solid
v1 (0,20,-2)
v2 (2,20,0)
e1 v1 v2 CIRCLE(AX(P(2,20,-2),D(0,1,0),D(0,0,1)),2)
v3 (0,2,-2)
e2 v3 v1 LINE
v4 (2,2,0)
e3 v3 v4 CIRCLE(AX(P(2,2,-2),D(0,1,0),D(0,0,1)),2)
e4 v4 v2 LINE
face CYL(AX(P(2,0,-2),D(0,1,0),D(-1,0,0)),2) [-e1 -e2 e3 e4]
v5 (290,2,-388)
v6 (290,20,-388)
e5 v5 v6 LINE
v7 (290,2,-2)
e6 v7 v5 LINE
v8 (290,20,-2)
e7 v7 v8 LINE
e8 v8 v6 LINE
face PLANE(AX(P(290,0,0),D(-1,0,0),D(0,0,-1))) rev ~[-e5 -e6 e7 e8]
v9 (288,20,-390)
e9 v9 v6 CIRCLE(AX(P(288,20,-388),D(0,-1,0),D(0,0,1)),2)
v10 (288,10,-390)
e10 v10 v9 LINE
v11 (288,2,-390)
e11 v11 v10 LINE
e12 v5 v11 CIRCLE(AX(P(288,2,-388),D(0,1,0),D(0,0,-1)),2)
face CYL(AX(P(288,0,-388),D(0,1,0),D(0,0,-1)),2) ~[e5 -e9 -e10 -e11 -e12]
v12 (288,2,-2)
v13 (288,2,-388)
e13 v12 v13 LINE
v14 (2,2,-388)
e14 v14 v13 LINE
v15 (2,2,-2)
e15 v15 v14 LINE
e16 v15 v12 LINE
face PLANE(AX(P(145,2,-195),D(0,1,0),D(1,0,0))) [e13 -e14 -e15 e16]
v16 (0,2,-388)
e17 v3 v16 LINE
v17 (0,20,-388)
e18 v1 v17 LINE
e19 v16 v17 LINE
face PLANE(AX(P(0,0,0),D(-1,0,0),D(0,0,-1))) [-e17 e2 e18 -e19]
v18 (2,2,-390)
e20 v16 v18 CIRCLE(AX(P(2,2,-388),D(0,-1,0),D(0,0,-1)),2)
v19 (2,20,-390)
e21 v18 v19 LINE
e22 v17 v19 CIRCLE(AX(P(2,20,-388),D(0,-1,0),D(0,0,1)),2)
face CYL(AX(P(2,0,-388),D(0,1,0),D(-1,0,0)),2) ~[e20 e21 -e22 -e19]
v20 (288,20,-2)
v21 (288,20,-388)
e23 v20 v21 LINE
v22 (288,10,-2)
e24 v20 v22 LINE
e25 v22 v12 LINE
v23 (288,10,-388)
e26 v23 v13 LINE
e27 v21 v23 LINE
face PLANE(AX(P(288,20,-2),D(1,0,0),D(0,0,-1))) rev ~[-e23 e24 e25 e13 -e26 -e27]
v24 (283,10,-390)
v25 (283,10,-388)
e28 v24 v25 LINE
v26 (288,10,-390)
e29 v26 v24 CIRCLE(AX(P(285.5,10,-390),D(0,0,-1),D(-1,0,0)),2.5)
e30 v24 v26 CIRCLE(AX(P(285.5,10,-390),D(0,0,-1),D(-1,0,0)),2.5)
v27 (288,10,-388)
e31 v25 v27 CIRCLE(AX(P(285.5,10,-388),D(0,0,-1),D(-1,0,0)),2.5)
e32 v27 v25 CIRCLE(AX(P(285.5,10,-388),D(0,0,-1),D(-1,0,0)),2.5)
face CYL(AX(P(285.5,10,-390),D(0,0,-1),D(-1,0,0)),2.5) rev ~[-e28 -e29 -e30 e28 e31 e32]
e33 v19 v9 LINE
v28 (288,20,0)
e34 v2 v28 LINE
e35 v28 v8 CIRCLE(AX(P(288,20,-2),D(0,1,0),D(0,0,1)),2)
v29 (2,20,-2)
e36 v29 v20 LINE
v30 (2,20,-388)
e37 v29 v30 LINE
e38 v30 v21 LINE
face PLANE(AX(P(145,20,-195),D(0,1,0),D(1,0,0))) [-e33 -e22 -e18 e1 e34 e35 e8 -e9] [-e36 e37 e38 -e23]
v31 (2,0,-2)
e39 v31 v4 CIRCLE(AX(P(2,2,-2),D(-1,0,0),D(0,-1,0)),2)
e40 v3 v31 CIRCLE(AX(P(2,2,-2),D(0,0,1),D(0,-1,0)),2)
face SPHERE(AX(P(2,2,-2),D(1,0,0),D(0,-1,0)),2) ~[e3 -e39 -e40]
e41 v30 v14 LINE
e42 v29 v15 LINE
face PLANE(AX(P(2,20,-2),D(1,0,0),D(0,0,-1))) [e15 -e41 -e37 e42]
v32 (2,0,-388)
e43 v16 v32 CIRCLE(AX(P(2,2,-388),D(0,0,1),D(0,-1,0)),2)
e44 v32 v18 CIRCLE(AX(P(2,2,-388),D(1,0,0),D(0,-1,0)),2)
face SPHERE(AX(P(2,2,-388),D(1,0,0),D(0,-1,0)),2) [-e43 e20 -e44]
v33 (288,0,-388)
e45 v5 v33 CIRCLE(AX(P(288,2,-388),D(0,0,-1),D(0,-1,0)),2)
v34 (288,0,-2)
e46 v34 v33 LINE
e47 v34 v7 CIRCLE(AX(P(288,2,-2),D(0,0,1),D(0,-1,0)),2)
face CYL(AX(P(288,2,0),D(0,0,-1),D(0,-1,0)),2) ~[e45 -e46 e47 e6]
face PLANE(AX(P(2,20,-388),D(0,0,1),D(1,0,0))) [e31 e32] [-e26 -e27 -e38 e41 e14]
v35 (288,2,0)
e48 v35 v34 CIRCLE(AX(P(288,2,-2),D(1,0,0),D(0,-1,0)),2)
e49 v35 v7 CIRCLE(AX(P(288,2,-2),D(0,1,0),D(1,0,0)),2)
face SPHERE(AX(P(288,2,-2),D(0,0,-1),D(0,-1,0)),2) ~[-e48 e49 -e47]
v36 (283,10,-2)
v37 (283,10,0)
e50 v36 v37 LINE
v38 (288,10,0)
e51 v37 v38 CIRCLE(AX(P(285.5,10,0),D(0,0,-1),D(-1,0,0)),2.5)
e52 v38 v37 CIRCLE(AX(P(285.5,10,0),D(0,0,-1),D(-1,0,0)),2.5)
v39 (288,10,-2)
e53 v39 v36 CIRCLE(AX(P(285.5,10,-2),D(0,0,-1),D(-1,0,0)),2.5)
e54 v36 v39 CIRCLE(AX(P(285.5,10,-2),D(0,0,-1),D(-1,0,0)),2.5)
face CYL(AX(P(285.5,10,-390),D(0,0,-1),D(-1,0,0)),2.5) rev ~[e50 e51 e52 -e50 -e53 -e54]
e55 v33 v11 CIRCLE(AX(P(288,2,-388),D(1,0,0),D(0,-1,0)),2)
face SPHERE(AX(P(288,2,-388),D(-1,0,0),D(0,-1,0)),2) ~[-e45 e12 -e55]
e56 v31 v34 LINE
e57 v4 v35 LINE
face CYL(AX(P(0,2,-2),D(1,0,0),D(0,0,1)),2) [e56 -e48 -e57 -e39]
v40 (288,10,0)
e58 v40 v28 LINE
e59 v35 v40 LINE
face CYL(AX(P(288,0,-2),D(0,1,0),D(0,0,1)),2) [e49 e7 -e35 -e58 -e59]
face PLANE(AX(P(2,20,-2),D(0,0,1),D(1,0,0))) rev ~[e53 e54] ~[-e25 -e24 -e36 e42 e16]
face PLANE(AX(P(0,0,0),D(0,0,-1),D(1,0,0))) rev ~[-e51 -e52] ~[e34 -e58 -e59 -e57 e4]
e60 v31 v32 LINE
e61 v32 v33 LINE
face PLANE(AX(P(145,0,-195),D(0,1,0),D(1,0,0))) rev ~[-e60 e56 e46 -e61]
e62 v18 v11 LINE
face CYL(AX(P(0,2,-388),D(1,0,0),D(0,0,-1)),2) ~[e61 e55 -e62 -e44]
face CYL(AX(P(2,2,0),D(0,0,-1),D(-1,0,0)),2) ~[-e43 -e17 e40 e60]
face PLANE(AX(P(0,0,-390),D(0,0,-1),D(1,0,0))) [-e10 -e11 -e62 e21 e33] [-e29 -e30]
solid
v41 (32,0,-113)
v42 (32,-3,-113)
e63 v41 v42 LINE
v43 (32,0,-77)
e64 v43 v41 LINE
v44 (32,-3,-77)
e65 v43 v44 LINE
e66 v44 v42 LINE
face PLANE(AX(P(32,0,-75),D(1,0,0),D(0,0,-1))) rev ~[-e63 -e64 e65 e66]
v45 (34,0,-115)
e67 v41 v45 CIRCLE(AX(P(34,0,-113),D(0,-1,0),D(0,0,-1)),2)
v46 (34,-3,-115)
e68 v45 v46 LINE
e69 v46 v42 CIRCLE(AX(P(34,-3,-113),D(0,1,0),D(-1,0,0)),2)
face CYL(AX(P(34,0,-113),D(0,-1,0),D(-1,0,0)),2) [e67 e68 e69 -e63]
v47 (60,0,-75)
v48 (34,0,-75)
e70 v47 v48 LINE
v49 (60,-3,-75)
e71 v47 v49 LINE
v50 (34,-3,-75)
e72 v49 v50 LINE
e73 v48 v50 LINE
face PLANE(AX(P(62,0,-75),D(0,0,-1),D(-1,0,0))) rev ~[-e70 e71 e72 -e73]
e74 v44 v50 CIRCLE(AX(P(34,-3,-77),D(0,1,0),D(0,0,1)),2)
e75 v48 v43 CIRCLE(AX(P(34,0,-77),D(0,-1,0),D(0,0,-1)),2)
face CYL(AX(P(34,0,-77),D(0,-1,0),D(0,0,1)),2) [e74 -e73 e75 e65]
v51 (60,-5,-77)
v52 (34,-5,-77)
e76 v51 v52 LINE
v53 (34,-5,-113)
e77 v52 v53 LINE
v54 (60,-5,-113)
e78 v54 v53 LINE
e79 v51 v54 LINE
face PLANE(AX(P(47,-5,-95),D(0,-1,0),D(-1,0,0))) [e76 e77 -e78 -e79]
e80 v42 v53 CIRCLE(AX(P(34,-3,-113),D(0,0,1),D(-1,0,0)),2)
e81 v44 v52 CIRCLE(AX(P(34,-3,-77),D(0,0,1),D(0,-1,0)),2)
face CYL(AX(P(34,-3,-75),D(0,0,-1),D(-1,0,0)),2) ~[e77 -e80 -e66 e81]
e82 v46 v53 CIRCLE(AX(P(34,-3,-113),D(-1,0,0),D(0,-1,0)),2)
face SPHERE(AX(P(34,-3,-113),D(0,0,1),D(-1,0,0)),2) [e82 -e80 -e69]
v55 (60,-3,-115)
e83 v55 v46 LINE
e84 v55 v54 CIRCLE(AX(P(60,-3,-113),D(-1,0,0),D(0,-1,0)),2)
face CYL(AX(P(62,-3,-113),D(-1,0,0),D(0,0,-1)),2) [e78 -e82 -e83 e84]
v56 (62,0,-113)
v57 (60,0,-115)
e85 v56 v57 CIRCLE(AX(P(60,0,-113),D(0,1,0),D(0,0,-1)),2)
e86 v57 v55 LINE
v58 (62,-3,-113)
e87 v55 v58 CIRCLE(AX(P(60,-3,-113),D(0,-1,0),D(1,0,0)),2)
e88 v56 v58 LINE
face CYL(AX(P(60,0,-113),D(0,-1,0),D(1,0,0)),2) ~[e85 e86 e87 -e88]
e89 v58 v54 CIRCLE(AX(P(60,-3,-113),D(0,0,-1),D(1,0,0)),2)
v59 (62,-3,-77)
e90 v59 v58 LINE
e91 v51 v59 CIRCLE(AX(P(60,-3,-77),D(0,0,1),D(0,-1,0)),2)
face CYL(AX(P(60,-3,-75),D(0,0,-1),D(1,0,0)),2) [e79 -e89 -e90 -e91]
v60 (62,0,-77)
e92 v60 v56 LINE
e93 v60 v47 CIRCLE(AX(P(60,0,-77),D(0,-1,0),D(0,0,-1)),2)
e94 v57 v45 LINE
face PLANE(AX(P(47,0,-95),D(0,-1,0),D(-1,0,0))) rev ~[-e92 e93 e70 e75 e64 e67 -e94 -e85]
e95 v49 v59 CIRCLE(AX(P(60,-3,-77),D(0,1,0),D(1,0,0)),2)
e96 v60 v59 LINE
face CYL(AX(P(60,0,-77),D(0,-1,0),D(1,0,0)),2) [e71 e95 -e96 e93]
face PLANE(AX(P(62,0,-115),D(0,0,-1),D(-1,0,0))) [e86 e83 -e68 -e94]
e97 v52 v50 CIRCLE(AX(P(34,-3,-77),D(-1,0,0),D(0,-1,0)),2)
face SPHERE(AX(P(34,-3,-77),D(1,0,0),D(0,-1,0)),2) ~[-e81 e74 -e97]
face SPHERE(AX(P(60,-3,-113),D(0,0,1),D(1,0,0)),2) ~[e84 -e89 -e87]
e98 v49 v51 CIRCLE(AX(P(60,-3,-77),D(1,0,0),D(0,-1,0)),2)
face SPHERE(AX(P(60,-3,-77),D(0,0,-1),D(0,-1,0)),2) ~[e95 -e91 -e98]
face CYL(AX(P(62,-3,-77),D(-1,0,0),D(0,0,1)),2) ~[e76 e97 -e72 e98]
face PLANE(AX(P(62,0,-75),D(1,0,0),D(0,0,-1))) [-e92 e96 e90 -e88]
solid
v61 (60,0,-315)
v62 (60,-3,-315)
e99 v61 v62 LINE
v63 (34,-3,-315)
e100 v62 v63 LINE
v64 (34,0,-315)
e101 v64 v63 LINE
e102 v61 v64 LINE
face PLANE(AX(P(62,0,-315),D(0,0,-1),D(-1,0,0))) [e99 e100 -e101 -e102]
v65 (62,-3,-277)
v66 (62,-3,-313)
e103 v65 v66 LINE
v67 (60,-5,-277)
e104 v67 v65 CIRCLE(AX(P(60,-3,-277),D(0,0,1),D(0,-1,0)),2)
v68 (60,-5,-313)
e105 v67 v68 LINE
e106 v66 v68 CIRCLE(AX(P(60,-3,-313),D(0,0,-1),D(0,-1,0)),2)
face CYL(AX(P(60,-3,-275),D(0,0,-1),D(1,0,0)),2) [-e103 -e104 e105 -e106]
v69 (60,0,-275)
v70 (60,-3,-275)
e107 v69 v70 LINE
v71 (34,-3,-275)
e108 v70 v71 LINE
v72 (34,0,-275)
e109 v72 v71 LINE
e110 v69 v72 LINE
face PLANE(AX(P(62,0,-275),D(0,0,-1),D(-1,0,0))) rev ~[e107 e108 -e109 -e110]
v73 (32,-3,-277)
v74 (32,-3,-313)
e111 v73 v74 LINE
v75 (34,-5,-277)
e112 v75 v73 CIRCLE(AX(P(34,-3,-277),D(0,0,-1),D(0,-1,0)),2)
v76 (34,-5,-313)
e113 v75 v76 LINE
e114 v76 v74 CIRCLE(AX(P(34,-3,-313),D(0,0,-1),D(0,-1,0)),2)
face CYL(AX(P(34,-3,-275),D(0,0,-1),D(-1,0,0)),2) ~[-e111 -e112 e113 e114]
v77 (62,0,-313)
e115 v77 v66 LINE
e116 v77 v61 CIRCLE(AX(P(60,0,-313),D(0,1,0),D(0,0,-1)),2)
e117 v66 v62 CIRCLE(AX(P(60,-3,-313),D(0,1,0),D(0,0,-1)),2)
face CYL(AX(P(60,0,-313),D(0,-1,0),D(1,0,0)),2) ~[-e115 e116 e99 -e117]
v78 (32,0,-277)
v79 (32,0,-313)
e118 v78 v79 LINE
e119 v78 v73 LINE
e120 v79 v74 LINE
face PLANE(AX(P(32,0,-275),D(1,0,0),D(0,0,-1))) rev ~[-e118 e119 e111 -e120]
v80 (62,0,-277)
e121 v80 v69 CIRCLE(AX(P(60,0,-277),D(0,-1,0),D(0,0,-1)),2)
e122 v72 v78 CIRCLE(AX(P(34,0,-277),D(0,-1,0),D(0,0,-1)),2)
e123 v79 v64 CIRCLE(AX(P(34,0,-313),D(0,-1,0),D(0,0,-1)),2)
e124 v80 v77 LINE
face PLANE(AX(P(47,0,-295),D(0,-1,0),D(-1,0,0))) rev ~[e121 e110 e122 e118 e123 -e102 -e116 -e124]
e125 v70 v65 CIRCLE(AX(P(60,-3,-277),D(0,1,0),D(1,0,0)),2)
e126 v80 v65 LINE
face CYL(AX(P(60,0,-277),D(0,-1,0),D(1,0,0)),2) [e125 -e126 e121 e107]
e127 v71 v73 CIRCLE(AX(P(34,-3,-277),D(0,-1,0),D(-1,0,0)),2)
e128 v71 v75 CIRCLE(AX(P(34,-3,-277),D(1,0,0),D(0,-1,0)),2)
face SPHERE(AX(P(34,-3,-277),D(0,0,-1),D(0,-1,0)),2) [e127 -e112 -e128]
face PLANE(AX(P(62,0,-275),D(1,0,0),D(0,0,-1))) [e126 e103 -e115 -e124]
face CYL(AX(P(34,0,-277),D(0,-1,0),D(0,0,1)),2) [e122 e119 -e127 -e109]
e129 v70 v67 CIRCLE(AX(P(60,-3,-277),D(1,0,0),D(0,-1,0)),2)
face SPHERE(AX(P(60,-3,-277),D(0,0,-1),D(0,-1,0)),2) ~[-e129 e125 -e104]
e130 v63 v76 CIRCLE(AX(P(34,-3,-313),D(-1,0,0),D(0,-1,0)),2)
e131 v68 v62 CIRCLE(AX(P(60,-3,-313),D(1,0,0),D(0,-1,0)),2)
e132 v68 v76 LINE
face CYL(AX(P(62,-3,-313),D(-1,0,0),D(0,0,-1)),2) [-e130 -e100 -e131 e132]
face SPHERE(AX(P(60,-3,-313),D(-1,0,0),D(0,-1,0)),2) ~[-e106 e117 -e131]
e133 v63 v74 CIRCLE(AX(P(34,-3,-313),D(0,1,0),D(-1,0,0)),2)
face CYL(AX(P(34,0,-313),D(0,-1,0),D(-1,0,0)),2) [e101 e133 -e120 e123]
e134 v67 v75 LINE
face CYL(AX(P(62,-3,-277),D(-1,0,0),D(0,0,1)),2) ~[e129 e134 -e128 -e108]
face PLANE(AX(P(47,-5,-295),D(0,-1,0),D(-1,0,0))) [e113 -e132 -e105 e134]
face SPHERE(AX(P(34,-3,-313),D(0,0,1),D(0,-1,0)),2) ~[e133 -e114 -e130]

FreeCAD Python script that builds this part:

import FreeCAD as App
import Part
import Sketcher

V = App.Vector


def edges_at(feature, points):
    """Names of the edges that pass closest to the given points."""
    edges = feature.Shape.Edges
    near = lambda p: min(range(len(edges)), key=lambda i: edges[i].distToShape(Part.Vertex(*p))[0])
    return sorted({f"Edge{near(p) + 1}" for p in points})

doc = App.newDocument("Part")
params = doc.addObject("Spreadsheet::Sheet", "Params")
for row, (alias, value) in enumerate([
    ("sketch1_width", "290 mm"),
    ("sketch1_height", "390 mm"),
    ("pad1_length", "20 mm"),
    ("sketch2_width", "286 mm"),
    ("sketch2_height", "386 mm"),
    ("pocket1_length", "18 mm"),
    ("fillet_radius", "2 mm"),
    ("sketch3_diameter", "5 mm"),
    ("sketch4_width", "30 mm"),
    ("sketch4_height", "40 mm"),
    ("pad2_length", "5 mm"),
    ("fillet2_radius", "2 mm"),
    ("sketch5_width", "30 mm"),
    ("sketch5_height", "40 mm"),
    ("pad3_length", "5 mm"),
    ("fillet3_radius", "2 mm"),
], start=1):
    params.set(f"A{row}", alias)
    params.set(f"B{row}", "=" + value)
    params.setAlias(f"B{row}", alias)

body = doc.addObject("PartDesign::Body", "Body")

sketch1 = doc.addObject("Sketcher::SketchObject", "Sketch")
body.addObject(sketch1)
sketch1.AttachmentSupport = (doc.XZ_Plane, [""])
sketch1.MapMode = "FlatFace"
sketch1.addGeometry([
    Part.LineSegment(V(0, -390, 0), V(0, 0, 0)),
    Part.LineSegment(V(0, 0, 0), V(290, 0, 0)),
    Part.LineSegment(V(290, 0, 0), V(290, -390, 0)),
    Part.LineSegment(V(290, -390, 0), V(0, -390, 0)),
], False)
sketch1.addConstraint([
    Sketcher.Constraint("Coincident", 0, 2, 1, 1),
    Sketcher.Constraint("Coincident", 1, 2, 2, 1),
    Sketcher.Constraint("Coincident", 2, 2, 3, 1),
    Sketcher.Constraint("Coincident", 3, 2, 0, 1),
    Sketcher.Constraint("Vertical", 0),
    Sketcher.Constraint("Horizontal", 1),
    Sketcher.Constraint("Vertical", 2),
    Sketcher.Constraint("Horizontal", 3),
    Sketcher.Constraint("Coincident", 0, 2, -1, 1),
    Sketcher.Constraint("DistanceX", 1, 1, 1, 2, 290.0),
    Sketcher.Constraint("DistanceY", 0, 1, 0, 2, 390.0),
])
sketch1.setExpression("Constraints[9]", "Params.sketch1_width")
sketch1.setExpression("Constraints[10]", "Params.sketch1_height")
pad1 = doc.addObject("PartDesign::Pad", "Pad")
body.addObject(pad1)
pad1.Profile = sketch1
pad1.setExpression("Length", "Params.pad1_length")
pad1.Reversed = True

sketch2 = doc.addObject("Sketcher::SketchObject", "Sketch001")
body.addObject(sketch2)
sketch2.AttachmentSupport = (doc.XZ_Plane, [""])
sketch2.MapMode = "FlatFace"
sketch2.AttachmentOffset = App.Placement(V(0, 0, -20), App.Rotation())
sketch2.addGeometry([
    Part.LineSegment(V(2, -388, 0), V(2, -2, 0)),
    Part.LineSegment(V(2, -2, 0), V(288, -2, 0)),
    Part.LineSegment(V(288, -2, 0), V(288, -388, 0)),
    Part.LineSegment(V(288, -388, 0), V(2, -388, 0)),
], False)
sketch2.addConstraint([
    Sketcher.Constraint("Coincident", 0, 2, 1, 1),
    Sketcher.Constraint("Coincident", 1, 2, 2, 1),
    Sketcher.Constraint("Coincident", 2, 2, 3, 1),
    Sketcher.Constraint("Coincident", 3, 2, 0, 1),
    Sketcher.Constraint("Vertical", 0),
    Sketcher.Constraint("Horizontal", 1),
    Sketcher.Constraint("Vertical", 2),
    Sketcher.Constraint("Horizontal", 3),
    Sketcher.Constraint("DistanceX", 1, 1, 1, 2, 286.0),
    Sketcher.Constraint("DistanceY", 0, 1, 0, 2, 386.0),
    Sketcher.Constraint("DistanceX", -1, 1, 0, 2, 2.0),
    Sketcher.Constraint("DistanceY", 0, 2, -1, 1, 2.0),
])
sketch2.setExpression("Constraints[8]", "Params.sketch2_width")
sketch2.setExpression("Constraints[9]", "Params.sketch2_height")
pocket1 = doc.addObject("PartDesign::Pocket", "Pocket")
body.addObject(pocket1)
pocket1.Profile = sketch2
pocket1.setExpression("Length", "Params.pocket1_length")
pocket1.Reversed = True
doc.recompute()

fillet = doc.addObject("PartDesign::Fillet", "Fillet")
body.addObject(fillet)
fillet.Base = (pocket1, edges_at(pocket1, [
    (145, 0, -390),
    (290, 0, -195),
    (145, 0, 0),
    (0, 0, -195),
    (0, 10, -390),
    (290, 10, -390),
    (290, 10, 0),
    (0, 10, 0),
]))
fillet.setExpression("Radius", "Params.fillet_radius")

sketch3 = doc.addObject("Sketcher::SketchObject", "Sketch002")
body.addObject(sketch3)
sketch3.AttachmentSupport = (doc.XY_Plane, [""])
sketch3.MapMode = "FlatFace"
sketch3.AttachmentOffset = App.Placement(V(0, 0, -390), App.Rotation())
sketch3.addGeometry(Part.Circle(V(285.5, 10, 0), V(0, 0, 1), 2.5), False)
sketch3.addConstraint([
    Sketcher.Constraint("Diameter", 0, 5.0),
    Sketcher.Constraint("DistanceY", -1, 1, 0, 3, 10.0),
    Sketcher.Constraint("DistanceX", -1, 1, 0, 3, 285.5),
])
sketch3.setExpression("Constraints[0]", "Params.sketch3_diameter")
pocket2 = doc.addObject("PartDesign::Pocket", "Pocket001")
body.addObject(pocket2)
pocket2.Profile = sketch3
pocket2.Type = "ThroughAll"
pocket2.Reversed = True
body2 = doc.addObject("PartDesign::Body", "Body001")

sketch4 = doc.addObject("Sketcher::SketchObject", "Sketch003")
body2.addObject(sketch4)
sketch4.AttachmentSupport = (doc.getObject("XZ_Plane001"), [""])
sketch4.MapMode = "FlatFace"
sketch4.addGeometry([
    Part.LineSegment(V(62, -115, 0), V(62, -75, 0)),
    Part.LineSegment(V(62, -75, 0), V(32, -75, 0)),
    Part.LineSegment(V(32, -75, 0), V(32, -115, 0)),
    Part.LineSegment(V(32, -115, 0), V(62, -115, 0)),
], False)
sketch4.addConstraint([
    Sketcher.Constraint("Coincident", 0, 2, 1, 1),
    Sketcher.Constraint("Coincident", 1, 2, 2, 1),
    Sketcher.Constraint("Coincident", 2, 2, 3, 1),
    Sketcher.Constraint("Coincident", 3, 2, 0, 1),
    Sketcher.Constraint("Vertical", 0),
    Sketcher.Constraint("Horizontal", 1),
    Sketcher.Constraint("Vertical", 2),
    Sketcher.Constraint("Horizontal", 3),
    Sketcher.Constraint("DistanceX", 1, 2, 1, 1, 30.0),
    Sketcher.Constraint("DistanceY", 0, 1, 0, 2, 40.0),
    Sketcher.Constraint("DistanceX", -1, 1, 0, 2, 62.0),
    Sketcher.Constraint("DistanceY", 0, 2, -1, 1, 75.0),
])
sketch4.setExpression("Constraints[8]", "Params.sketch4_width")
sketch4.setExpression("Constraints[9]", "Params.sketch4_height")
pad2 = doc.addObject("PartDesign::Pad", "Pad001")
body2.addObject(pad2)
pad2.Profile = sketch4
pad2.setExpression("Length", "Params.pad2_length")
doc.recompute()

fillet2 = doc.addObject("PartDesign::Fillet", "Fillet001")
body2.addObject(fillet2)
fillet2.Base = (pad2, edges_at(pad2, [
    (62, -5, -95),
    (47, -5, -75),
    (32, -5, -95),
    (32, -2.5, -75),
    (62, -2.5, -75),
    (62, -2.5, -115),
    (32, -2.5, -115),
    (47, -5, -115),
]))
fillet2.setExpression("Radius", "Params.fillet2_radius")
body3 = doc.addObject("PartDesign::Body", "Body002")

sketch5 = doc.addObject("Sketcher::SketchObject", "Sketch004")
body3.addObject(sketch5)
sketch5.AttachmentSupport = (doc.getObject("XZ_Plane002"), [""])
sketch5.MapMode = "FlatFace"
sketch5.addGeometry([
    Part.LineSegment(V(62, -315, 0), V(62, -275, 0)),
    Part.LineSegment(V(62, -275, 0), V(32, -275, 0)),
    Part.LineSegment(V(32, -275, 0), V(32, -315, 0)),
    Part.LineSegment(V(32, -315, 0), V(62, -315, 0)),
], False)
sketch5.addConstraint([
    Sketcher.Constraint("Coincident", 0, 2, 1, 1),
    Sketcher.Constraint("Coincident", 1, 2, 2, 1),
    Sketcher.Constraint("Coincident", 2, 2, 3, 1),
    Sketcher.Constraint("Coincident", 3, 2, 0, 1),
    Sketcher.Constraint("Vertical", 0),
    Sketcher.Constraint("Horizontal", 1),
    Sketcher.Constraint("Vertical", 2),
    Sketcher.Constraint("Horizontal", 3),
    Sketcher.Constraint("DistanceX", 1, 2, 1, 1, 30.0),
    Sketcher.Constraint("DistanceY", 0, 1, 0, 2, 40.0),
    Sketcher.Constraint("DistanceX", -1, 1, 0, 2, 62.0),
    Sketcher.Constraint("DistanceY", 0, 2, -1, 1, 275.0),
])
sketch5.setExpression("Constraints[8]", "Params.sketch5_width")
sketch5.setExpression("Constraints[9]", "Params.sketch5_height")
pad3 = doc.addObject("PartDesign::Pad", "Pad002")
body3.addObject(pad3)
pad3.Profile = sketch5
pad3.setExpression("Length", "Params.pad3_length")
doc.recompute()

fillet3 = doc.addObject("PartDesign::Fillet", "Fillet002")
body3.addObject(fillet3)
fillet3.Base = (pad3, edges_at(pad3, [
    (32, -5, -295),
    (47, -5, -315),
    (62, -5, -295),
    (47, -5, -275),
    (32, -2.5, -275),
    (62, -2.5, -275),
    (62, -2.5, -315),
    (32, -2.5, -315),
]))
fillet3.setExpression("Radius", "Params.fillet3_radius")

doc.recompute()
